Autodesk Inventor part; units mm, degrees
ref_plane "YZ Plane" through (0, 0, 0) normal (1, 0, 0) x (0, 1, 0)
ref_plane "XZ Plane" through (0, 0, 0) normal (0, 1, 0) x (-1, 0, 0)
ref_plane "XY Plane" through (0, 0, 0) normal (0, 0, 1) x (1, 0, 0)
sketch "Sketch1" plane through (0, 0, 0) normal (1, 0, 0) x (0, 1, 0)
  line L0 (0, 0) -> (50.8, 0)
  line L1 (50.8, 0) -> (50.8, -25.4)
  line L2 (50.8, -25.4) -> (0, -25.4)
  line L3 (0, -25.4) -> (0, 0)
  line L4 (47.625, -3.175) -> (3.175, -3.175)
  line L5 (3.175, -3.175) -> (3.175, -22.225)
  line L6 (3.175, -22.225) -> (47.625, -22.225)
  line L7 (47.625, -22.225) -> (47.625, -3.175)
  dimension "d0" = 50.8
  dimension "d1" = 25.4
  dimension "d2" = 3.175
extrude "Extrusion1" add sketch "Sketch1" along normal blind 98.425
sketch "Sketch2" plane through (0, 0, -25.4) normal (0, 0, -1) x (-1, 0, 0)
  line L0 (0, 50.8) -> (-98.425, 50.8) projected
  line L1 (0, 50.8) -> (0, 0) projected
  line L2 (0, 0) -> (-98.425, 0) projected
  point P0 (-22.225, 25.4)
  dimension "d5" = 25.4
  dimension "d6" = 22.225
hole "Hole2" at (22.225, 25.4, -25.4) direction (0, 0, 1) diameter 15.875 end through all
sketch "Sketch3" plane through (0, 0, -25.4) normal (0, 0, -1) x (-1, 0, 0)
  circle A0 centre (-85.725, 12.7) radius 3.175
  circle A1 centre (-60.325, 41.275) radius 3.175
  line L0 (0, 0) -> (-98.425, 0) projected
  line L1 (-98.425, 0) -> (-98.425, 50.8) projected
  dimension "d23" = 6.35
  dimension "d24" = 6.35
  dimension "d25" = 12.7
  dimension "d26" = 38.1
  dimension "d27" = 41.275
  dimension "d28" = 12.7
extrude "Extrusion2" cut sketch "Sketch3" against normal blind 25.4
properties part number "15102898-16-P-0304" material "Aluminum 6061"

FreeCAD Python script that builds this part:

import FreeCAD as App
import Part
import Sketcher
Q = App.Units.Quantity

doc = App.newDocument("Part")
body = doc.addObject("PartDesign::Body", "Body")

sketch1 = doc.addObject("Sketcher::SketchObject", "Sketch")
body.addObject(sketch1)
sketch1.AttachmentSupport = (doc.YZ_Plane, [""])
sketch1.MapMode = "FlatFace"
sketch1.addGeometry([
    Part.LineSegment(App.Vector(50.8, 0, 0), App.Vector(0, 0, 0)),
    Part.LineSegment(App.Vector(0, 0, 0), App.Vector(0, -25.4, 0)),
    Part.LineSegment(App.Vector(0, -25.4, 0), App.Vector(50.8, -25.4, 0)),
    Part.LineSegment(App.Vector(50.8, -25.4, 0), App.Vector(50.8, 0, 0)),
    Part.LineSegment(App.Vector(3.175, -3.175, 0), App.Vector(47.625, -3.175, 0)),
    Part.LineSegment(App.Vector(47.625, -3.175, 0), App.Vector(47.625, -22.225, 0)),
    Part.LineSegment(App.Vector(47.625, -22.225, 0), App.Vector(3.175, -22.225, 0)),
    Part.LineSegment(App.Vector(3.175, -22.225, 0), App.Vector(3.175, -3.175, 0)),
], False)
sketch1.addConstraint([
    Sketcher.Constraint("Coincident", 0, 2, 1, 1),
    Sketcher.Constraint("Coincident", 1, 2, 2, 1),
    Sketcher.Constraint("Coincident", 2, 2, 3, 1),
    Sketcher.Constraint("Coincident", 3, 2, 0, 1),
    Sketcher.Constraint("Coincident", 4, 2, 5, 1),
    Sketcher.Constraint("Coincident", 5, 2, 6, 1),
    Sketcher.Constraint("Coincident", 6, 2, 7, 1),
    Sketcher.Constraint("Coincident", 7, 2, 4, 1),
    Sketcher.Constraint("Horizontal", 0),
    Sketcher.Constraint("Vertical", 1),
    Sketcher.Constraint("Horizontal", 2),
    Sketcher.Constraint("Vertical", 3),
    Sketcher.Constraint("Horizontal", 4),
    Sketcher.Constraint("Vertical", 5),
    Sketcher.Constraint("Horizontal", 6),
    Sketcher.Constraint("Vertical", 7),
    Sketcher.Constraint("Coincident", 0, 2, -1, 1),
    Sketcher.Constraint("DistanceX", 0, 2, 0, 1, Q("2 in")),
    Sketcher.Constraint("DistanceY", 1, 2, 1, 1, Q("1 in")),
    Sketcher.Constraint("DistanceY", 4, 2, -1, 1, Q("0.125 in")),
    Sketcher.Constraint("DistanceX", -1, 1, 6, 2, Q("0.125 in")),
    Sketcher.Constraint("DistanceX", 4, 2, 3, 2, Q("0.125 in")),
    Sketcher.Constraint("DistanceY", 2, 2, 5, 2, Q("0.125 in")),
])
pad1 = doc.addObject("PartDesign::Pad", "Pad")
body.addObject(pad1)
pad1.Profile = sketch1
pad1.Length = Q("3.875 in")

sketch2 = doc.addObject("Sketcher::SketchObject", "Sketch001")
body.addObject(sketch2)
sketch2.AttachmentSupport = (doc.XY_Plane, [""])
sketch2.MapMode = "FlatFace"
sketch2.AttachmentOffset = App.Placement(App.Vector(0, 0, -1 * 25.4), App.Rotation())
sketch2.addGeometry(Part.Circle(App.Vector(22.225, 25.4, 0), App.Vector(0, 0, 1), 7.9375), False)
sketch2.addConstraint([
    Sketcher.Constraint("Diameter", 0, Q("0.625 in")),
    Sketcher.Constraint("DistanceY", -1, 1, 0, 3, Q("1 in")),
    Sketcher.Constraint("DistanceX", -1, 1, 0, 3, Q("0.875 in")),
])
doc.recompute()
hole = doc.addObject("PartDesign::Hole", "Hole")
body.addObject(hole)
hole.Profile = sketch2
hole.ThreadType = "None"
hole.Diameter = Q("0.625 in")
hole.DepthType = "ThroughAll"
hole.Reversed = True

sketch3 = doc.addObject("Sketcher::SketchObject", "Sketch002")
body.addObject(sketch3)
sketch3.AttachmentSupport = (doc.XY_Plane, [""])
sketch3.MapMode = "FlatFace"
sketch3.AttachmentOffset = App.Placement(App.Vector(0, 0, -1 * 25.4), App.Rotation())
sketch3.addGeometry([
    Part.Circle(App.Vector(85.725, 12.7, 0), App.Vector(0, 0, 1), 3.175),
    Part.Circle(App.Vector(60.325, 41.275, 0), App.Vector(0, 0, 1), 3.175),
], False)
sketch3.addConstraint([
    Sketcher.Constraint("Equal", 0, 1),
    Sketcher.Constraint("Diameter", 0, Q("0.25 in")),
    Sketcher.Constraint("DistanceY", -1, 1, 0, 3, Q("0.5 in")),
    Sketcher.Constraint("DistanceY", -1, 1, 1, 3, Q("1.625 in")),
    Sketcher.Constraint("DistanceX", 1, 3, 0, 3, Q("1 in")),
    Sketcher.Constraint("DistanceX", -1, 1, 0, 3, Q("3.375 in")),
])
pocket1 = doc.addObject("PartDesign::Pocket", "Pocket")
body.addObject(pocket1)
pocket1.Profile = sketch3
pocket1.Length = Q("1 in")
pocket1.Reversed = True

doc.recompute()
